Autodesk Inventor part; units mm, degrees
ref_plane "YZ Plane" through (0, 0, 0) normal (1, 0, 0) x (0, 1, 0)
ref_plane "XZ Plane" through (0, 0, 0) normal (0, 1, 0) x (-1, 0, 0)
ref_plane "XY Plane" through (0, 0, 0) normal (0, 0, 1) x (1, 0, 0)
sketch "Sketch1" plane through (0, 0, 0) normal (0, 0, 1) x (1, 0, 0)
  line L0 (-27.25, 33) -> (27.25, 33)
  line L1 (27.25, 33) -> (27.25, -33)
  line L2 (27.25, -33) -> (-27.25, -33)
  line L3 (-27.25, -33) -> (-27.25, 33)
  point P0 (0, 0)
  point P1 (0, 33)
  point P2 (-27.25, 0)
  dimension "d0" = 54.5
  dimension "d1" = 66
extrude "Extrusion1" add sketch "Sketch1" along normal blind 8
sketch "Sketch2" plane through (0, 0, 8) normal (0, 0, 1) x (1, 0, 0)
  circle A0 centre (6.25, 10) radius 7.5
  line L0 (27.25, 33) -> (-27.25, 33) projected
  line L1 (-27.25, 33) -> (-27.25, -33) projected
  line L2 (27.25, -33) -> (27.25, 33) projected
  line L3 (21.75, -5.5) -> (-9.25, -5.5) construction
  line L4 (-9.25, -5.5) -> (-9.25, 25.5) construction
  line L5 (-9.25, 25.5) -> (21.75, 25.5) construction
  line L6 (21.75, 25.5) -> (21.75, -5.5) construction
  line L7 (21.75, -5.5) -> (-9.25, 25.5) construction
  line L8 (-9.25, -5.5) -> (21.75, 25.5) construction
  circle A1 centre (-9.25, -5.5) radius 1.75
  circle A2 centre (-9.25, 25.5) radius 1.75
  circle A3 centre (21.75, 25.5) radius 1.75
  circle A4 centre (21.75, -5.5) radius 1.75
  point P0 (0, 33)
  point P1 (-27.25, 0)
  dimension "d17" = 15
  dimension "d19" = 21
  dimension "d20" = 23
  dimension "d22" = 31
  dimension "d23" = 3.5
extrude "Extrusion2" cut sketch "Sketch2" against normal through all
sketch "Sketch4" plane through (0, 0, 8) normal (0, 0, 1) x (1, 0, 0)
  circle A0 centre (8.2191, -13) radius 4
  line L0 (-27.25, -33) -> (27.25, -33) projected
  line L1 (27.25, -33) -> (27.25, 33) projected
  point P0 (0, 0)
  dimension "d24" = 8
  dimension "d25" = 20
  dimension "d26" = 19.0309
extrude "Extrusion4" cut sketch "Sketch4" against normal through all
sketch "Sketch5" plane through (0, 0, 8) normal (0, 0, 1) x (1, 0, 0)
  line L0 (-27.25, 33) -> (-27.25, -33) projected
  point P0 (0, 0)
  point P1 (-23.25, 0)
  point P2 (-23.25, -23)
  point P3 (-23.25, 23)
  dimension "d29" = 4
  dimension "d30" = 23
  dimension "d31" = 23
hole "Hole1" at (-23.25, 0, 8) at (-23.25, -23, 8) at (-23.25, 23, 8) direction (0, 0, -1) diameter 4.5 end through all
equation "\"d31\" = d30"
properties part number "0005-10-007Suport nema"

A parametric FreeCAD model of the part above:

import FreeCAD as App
import Part
import Sketcher
Q = App.Units.Quantity


def add_polygon(sketch, points):
    """Adds a closed chain of lines whose ends are joined by coincident constraints."""
    first, n = sketch.GeometryCount, len(points)
    for a, b in zip(points, points[1:] + points[:1]):
        sketch.addGeometry(Part.LineSegment(App.Vector(*a, 0), App.Vector(*b, 0)), False)
    for i in range(n):
        sketch.addConstraint(Sketcher.Constraint("Coincident", first + i, 2, first + (i + 1) % n, 1))

doc = App.newDocument("Part")
params = doc.addObject("Spreadsheet::Sheet", "Params")
for row, (alias, value) in enumerate([
    ("sketch1_height", "66 mm"),
    ("sketch1_width", "54.5 mm"),
    ("pad1_length", "8 mm"),
    ("sketch2_diameter", "15 mm"),
    ("sketch2_diameter2", "3.5 mm"),
    ("sketch3_diameter", "8 mm"),
    ("sketch4_diameter", "4.5 mm"),
    ("hole_diameter", "4.5 mm"),
], start=1):
    params.set(f"A{row}", alias)
    params.set(f"B{row}", "=" + value)
    params.setAlias(f"B{row}", alias)

body = doc.addObject("PartDesign::Body", "Body")

sketch1 = body.newObject("Sketcher::SketchObject", "Sketch")
sketch1.AttachmentSupport = (doc.getObject("XY_Plane"), [""])
sketch1.MapMode = "FlatFace"
add_polygon(sketch1, [(27, 33), (-27, 33), (-27, -33), (27, -33)])
sketch1.addConstraint(Sketcher.Constraint("Horizontal", 0))
sketch1.addConstraint(Sketcher.Constraint("Vertical", 1))
sketch1.addConstraint(Sketcher.Constraint("Horizontal", 2))
sketch1.addConstraint(Sketcher.Constraint("Vertical", 3))
sketch1.addConstraint(Sketcher.Constraint("Symmetric", 0, 2, 2, 2, -1, 1))
sketch1.addConstraint(Sketcher.Constraint("DistanceY", 1, 2, 1, 1, Q("66 mm")))
sketch1.addConstraint(Sketcher.Constraint("DistanceX", 0, 2, 0, 1, Q("54.5 mm")))
sketch1.setExpression("Constraints[9]", "Params.sketch1_height")
sketch1.setExpression("Constraints[10]", "Params.sketch1_width")
pad1 = body.newObject("PartDesign::Pad", "Pad")
pad1.Profile = sketch1
pad1.setExpression("Length", "Params.pad1_length")

sketch2 = body.newObject("Sketcher::SketchObject", "Sketch001")
sketch2.AttachmentSupport = (doc.getObject("XY_Plane"), [""])
sketch2.MapMode = "FlatFace"
sketch2.AttachmentOffset = App.Placement(App.Vector(0, 0, 8), App.Rotation())
sketch2.addGeometry(Part.Circle(App.Vector(6.2, 10, 0), App.Vector(0, 0, 1), 7.5), False)
sketch2.addGeometry(Part.Circle(App.Vector(-9.2, -5.5, 0), App.Vector(0, 0, 1), 1.8), False)
sketch2.addGeometry(Part.Circle(App.Vector(-9.2, 25.5, 0), App.Vector(0, 0, 1), 1.8), False)
sketch2.addGeometry(Part.Circle(App.Vector(21.8, 25.5, 0), App.Vector(0, 0, 1), 1.8), False)
sketch2.addGeometry(Part.Circle(App.Vector(21.8, -5.5, 0), App.Vector(0, 0, 1), 1.8), False)
sketch2.addConstraint(Sketcher.Constraint("Equal", 1, 2))
sketch2.addConstraint(Sketcher.Constraint("Equal", 2, 3))
sketch2.addConstraint(Sketcher.Constraint("Equal", 3, 4))
sketch2.addConstraint(Sketcher.Constraint("Horizontal", 2, 3, 3, 3))
sketch2.addConstraint(Sketcher.Constraint("Horizontal", 1, 3, 4, 3))
sketch2.addConstraint(Sketcher.Constraint("Vertical", 1, 3, 2, 3))
sketch2.addConstraint(Sketcher.Constraint("Vertical", 3, 3, 4, 3))
sketch2.addConstraint(Sketcher.Constraint("Diameter", 0, Q("15 mm")))
sketch2.addConstraint(Sketcher.Constraint("Diameter", 1, Q("3.5 mm")))
sketch2.addConstraint(Sketcher.Constraint("DistanceY", 1, 3, 2, 3, Q("31 mm")))
sketch2.addConstraint(Sketcher.Constraint("DistanceX", 2, 3, 3, 3, Q("31 mm")))
sketch2.addConstraint(Sketcher.Constraint("DistanceY", -1, 1, 0, 3, Q("10 mm")))
sketch2.addConstraint(Sketcher.Constraint("DistanceY", 1, 3, -1, 1, Q("5.5 mm")))
sketch2.addConstraint(Sketcher.Constraint("DistanceX", 1, 3, 0, 3, Q("15.5 mm")))
sketch2.addConstraint(Sketcher.Constraint("DistanceX", -1, 1, 0, 3, Q("6.25 mm")))
sketch2.setExpression("Constraints[7]", "Params.sketch2_diameter")
sketch2.setExpression("Constraints[8]", "Params.sketch2_diameter2")
pocket1 = body.newObject("PartDesign::Pocket", "Pocket")
pocket1.Profile = sketch2
pocket1.Type = "ThroughAll"

sketch3 = body.newObject("Sketcher::SketchObject", "Sketch002")
sketch3.AttachmentSupport = (doc.getObject("XY_Plane"), [""])
sketch3.MapMode = "FlatFace"
sketch3.AttachmentOffset = App.Placement(App.Vector(0, 0, 8), App.Rotation())
sketch3.addGeometry(Part.Circle(App.Vector(8.2, -13, 0), App.Vector(0, 0, 1), 4), False)
sketch3.addConstraint(Sketcher.Constraint("Diameter", 0, Q("8 mm")))
sketch3.addConstraint(Sketcher.Constraint("DistanceY", 0, 3, -1, 1, Q("13 mm")))
sketch3.addConstraint(Sketcher.Constraint("DistanceX", -1, 1, 0, 3, Q("8.219 mm")))
sketch3.setExpression("Constraints[0]", "Params.sketch3_diameter")
pocket2 = body.newObject("PartDesign::Pocket", "Pocket001")
pocket2.Profile = sketch3
pocket2.Type = "ThroughAll"

sketch4 = body.newObject("Sketcher::SketchObject", "Sketch003")
sketch4.AttachmentSupport = (doc.getObject("XY_Plane"), [""])
sketch4.MapMode = "FlatFace"
sketch4.AttachmentOffset = App.Placement(App.Vector(0, 0, 8), App.Rotation())
sketch4.addGeometry(Part.Circle(App.Vector(-23.2, 0, 0), App.Vector(0, 0, 1), 2.2), False)
sketch4.addGeometry(Part.Circle(App.Vector(-23.2, -23, 0), App.Vector(0, 0, 1), 2.2), False)
sketch4.addGeometry(Part.Circle(App.Vector(-23.2, 23, 0), App.Vector(0, 0, 1), 2.2), False)
sketch4.addConstraint(Sketcher.Constraint("Equal", 0, 1))
sketch4.addConstraint(Sketcher.Constraint("Equal", 1, 2))
sketch4.addConstraint(Sketcher.Constraint("Symmetric", 1, 3, 2, 3, -1))
sketch4.addConstraint(Sketcher.Constraint("PointOnObject", 0, 3, -1))
sketch4.addConstraint(Sketcher.Constraint("Vertical", 0, 3, 1, 3))
sketch4.addConstraint(Sketcher.Constraint("Diameter", 0, Q("4.5 mm")))
sketch4.addConstraint(Sketcher.Constraint("DistanceY", 1, 3, -1, 1, Q("23 mm")))
sketch4.addConstraint(Sketcher.Constraint("DistanceX", 0, 3, -1, 1, Q("23.25 mm")))
sketch4.setExpression("Constraints[5]", "Params.sketch4_diameter")
doc.recompute()
hole = body.newObject("PartDesign::Hole", "Hole")
hole.Profile = sketch4
hole.ThreadType = "None"
hole.setExpression("Diameter", "Params.hole_diameter")
hole.DepthType = "ThroughAll"

doc.recompute()
